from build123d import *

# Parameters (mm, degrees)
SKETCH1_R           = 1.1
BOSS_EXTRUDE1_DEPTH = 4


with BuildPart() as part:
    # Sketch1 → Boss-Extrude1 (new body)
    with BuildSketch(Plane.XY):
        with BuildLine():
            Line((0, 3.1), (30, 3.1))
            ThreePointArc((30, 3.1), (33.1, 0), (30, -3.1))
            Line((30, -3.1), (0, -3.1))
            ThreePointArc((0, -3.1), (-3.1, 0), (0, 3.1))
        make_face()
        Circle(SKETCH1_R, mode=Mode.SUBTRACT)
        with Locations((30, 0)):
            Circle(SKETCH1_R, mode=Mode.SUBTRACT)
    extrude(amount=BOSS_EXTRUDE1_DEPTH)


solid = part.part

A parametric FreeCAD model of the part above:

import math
import FreeCAD as App
import Part
import Sketcher
from FreeCAD import Vector
Q = App.Units.Quantity

doc = App.newDocument("Part")
body = doc.addObject("PartDesign::Body", "Body")

# Sketch on XY plane
sketch1 = doc.addObject("Sketcher::SketchObject", "Sketch")
body.addObject(sketch1)
sketch1.AttachmentSupport = (doc.XY_Plane, [""])
sketch1.MapMode = "FlatFace"
sketch1.addGeometry([
    Part.LineSegment(Vector(30, 3.1, 0), Vector(0, 3.1, 0)),  # 0
    Part.ArcOfCircle(Part.Circle(Vector(0, 0, 0), Vector(0, 0, 1), 3.1), math.radians(90), math.radians(270)),  # 1
    Part.LineSegment(Vector(0, -3.1, 0), Vector(30, -3.1, 0)),  # 2
    Part.ArcOfCircle(Part.Circle(Vector(30, 0, 0), Vector(0, 0, 1), 3.1), math.radians(-90), math.radians(90)),  # 3
    Part.Circle(Vector(30, 0, 0), Vector(0, 0, 1), 1.1),  # 4
    Part.Circle(Vector(0, 0, 0), Vector(0, 0, 1), 1.1),  # 5
], False)
sketch1.addConstraint([
    Sketcher.Constraint("Tangent", 0, 2, 1, 1),
    Sketcher.Constraint("Tangent", 1, 2, 2, 1),
    Sketcher.Constraint("Tangent", 2, 2, 3, 1),
    Sketcher.Constraint("Tangent", 3, 2, 0, 1),
    Sketcher.Constraint("Horizontal", 0),
    Sketcher.Constraint("Horizontal", 2),
    Sketcher.Constraint("Coincident", 1, 3, -1, 1),
    Sketcher.Constraint("Coincident", 5, 3, -1, 1),
    Sketcher.Constraint("Coincident", 4, 3, 3, 3),
    Sketcher.Constraint("Equal", 4, 5),
    Sketcher.Constraint("Diameter", 4, Q("2.2 mm")),
    Sketcher.Constraint("Radius", 1, Q("3.1 mm")),
    Sketcher.Constraint("DistanceX", 0, 2, 0, 1, Q("30 mm")),
])
pad1 = doc.addObject("PartDesign::Pad", "Pad")
body.addObject(pad1)
pad1.Profile = sketch1
pad1.Length = 4

doc.recompute()
